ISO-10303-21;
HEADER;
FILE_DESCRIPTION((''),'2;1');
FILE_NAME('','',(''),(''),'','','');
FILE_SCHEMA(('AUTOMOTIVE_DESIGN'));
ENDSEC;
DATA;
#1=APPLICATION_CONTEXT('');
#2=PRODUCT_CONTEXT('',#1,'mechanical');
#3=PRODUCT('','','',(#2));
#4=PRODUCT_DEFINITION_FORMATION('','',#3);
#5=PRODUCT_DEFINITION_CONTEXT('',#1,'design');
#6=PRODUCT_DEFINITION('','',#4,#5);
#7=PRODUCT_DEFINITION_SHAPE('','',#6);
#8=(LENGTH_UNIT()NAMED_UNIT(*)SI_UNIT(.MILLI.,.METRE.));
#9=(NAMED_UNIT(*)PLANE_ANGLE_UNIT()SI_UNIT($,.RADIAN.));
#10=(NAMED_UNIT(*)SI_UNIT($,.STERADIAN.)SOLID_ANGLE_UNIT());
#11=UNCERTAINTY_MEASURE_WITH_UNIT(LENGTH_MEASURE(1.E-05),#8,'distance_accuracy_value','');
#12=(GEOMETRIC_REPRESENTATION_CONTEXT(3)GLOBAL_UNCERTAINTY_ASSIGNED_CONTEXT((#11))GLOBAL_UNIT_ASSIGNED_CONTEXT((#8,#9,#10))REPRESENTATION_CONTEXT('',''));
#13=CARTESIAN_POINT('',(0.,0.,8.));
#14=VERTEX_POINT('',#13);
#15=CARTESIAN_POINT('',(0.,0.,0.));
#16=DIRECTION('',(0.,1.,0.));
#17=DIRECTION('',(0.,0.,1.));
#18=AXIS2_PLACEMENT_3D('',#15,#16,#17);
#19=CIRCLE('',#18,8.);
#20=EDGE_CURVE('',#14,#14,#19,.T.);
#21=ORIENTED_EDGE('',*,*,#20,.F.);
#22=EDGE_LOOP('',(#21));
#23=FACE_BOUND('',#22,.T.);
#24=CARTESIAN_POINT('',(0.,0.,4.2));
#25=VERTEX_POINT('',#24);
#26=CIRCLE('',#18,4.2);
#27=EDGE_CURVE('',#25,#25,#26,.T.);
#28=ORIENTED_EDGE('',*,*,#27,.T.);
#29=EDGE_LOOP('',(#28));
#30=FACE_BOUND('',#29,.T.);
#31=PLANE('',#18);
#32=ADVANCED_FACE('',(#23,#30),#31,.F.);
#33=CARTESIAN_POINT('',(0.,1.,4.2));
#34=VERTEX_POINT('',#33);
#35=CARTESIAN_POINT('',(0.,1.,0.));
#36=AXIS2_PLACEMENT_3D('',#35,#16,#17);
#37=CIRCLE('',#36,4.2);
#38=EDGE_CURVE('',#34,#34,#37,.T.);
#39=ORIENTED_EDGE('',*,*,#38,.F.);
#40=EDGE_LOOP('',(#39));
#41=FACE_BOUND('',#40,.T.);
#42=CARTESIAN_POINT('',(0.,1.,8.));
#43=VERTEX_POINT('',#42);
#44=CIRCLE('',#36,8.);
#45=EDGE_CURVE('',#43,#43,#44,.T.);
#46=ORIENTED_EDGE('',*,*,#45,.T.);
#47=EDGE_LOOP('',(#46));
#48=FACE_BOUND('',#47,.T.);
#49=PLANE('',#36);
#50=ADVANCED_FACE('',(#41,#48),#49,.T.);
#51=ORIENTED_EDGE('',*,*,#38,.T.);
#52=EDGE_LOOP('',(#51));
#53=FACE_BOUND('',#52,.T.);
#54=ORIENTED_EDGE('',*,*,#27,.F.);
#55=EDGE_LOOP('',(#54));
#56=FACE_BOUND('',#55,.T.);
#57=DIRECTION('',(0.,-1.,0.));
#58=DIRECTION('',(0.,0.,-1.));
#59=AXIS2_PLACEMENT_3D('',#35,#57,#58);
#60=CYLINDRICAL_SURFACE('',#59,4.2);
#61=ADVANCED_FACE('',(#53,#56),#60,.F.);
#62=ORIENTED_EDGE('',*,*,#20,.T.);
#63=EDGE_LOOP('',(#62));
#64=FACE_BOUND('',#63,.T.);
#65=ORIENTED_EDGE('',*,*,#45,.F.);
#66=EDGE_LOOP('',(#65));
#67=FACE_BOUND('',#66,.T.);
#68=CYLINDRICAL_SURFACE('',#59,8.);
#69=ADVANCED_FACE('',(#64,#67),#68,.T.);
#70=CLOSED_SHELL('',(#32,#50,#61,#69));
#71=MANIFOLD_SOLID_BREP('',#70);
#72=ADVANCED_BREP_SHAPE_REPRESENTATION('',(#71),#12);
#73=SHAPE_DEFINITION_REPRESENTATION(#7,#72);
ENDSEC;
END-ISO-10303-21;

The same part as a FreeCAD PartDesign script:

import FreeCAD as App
import Part
import Sketcher

doc = App.newDocument("Part")
body = doc.addObject("PartDesign::Body", "Body")

# Sketch on XZ plane
sketch1 = doc.addObject("Sketcher::SketchObject", "Sketch")
body.addObject(sketch1)
sketch1.AttachmentSupport = (doc.XZ_Plane, [""])
sketch1.MapMode = "FlatFace"
sketch1.addGeometry(Part.Circle(App.Vector(0, 0, 0), App.Vector(0, 0, 1), 8), False)
sketch1.addGeometry(Part.Circle(App.Vector(0, 0, 0), App.Vector(0, 0, 1), 4.2), False)
sketch1.addConstraint(Sketcher.Constraint("Coincident", 0, 3, -1, 1))
sketch1.addConstraint(Sketcher.Constraint("Coincident", 1, 3, -1, 1))
sketch1.addConstraint(Sketcher.Constraint("Diameter", 0, 16.0))
sketch1.addConstraint(Sketcher.Constraint("Diameter", 1, 8.4))
pad1 = doc.addObject("PartDesign::Pad", "Pad")
body.addObject(pad1)
pad1.Profile = sketch1
pad1.Length = 1
pad1.Reversed = True

doc.recompute()
